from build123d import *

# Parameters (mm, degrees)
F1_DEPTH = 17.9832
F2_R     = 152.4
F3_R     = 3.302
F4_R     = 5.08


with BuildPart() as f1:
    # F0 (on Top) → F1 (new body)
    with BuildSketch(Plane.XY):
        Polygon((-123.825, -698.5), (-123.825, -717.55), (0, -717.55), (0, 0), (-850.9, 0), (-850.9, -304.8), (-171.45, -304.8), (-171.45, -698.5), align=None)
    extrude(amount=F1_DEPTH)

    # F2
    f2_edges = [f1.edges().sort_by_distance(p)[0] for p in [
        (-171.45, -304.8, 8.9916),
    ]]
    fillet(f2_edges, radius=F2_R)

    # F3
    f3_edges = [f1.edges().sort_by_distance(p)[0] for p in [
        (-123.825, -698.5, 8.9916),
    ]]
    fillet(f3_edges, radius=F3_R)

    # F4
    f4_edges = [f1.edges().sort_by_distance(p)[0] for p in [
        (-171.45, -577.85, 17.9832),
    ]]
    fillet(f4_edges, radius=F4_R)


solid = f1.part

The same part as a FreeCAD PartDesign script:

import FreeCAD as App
import Part
import Sketcher
Q = App.Units.Quantity


def edges_at(feature, points):
    """Names of the edges that pass closest to the given points."""
    edges = feature.Shape.Edges
    near = lambda p: min(range(len(edges)), key=lambda i: edges[i].distToShape(Part.Vertex(*p))[0])
    return sorted({f"Edge{near(p) + 1}" for p in points})


def add_polygon(sketch, points):
    """Adds a closed chain of lines whose ends are joined by coincident constraints."""
    first, n = sketch.GeometryCount, len(points)
    for a, b in zip(points, points[1:] + points[:1]):
        sketch.addGeometry(Part.LineSegment(App.Vector(*a, 0), App.Vector(*b, 0)), False)
    for i in range(n):
        sketch.addConstraint(Sketcher.Constraint("Coincident", first + i, 2, first + (i + 1) % n, 1))

doc = App.newDocument("Part")
params = doc.addObject("Spreadsheet::Sheet", "Params")
for row, (alias, value) in enumerate([
    ("sketch1_height", "12 in"),
    ("sketch1_width", "33.5 in"),
    ("sketch1_height2", "15.5 in"),
    ("sketch1_width2", "26.75 in"),
    ("sketch1_height3", "0.75 in"),
    ("pad1_length", "0.708 in"),
    ("fillet_radius", "6 in"),
    ("fillet2_radius", "0.13 in"),
    ("fillet3_radius", "0.2 in"),
], start=1):
    params.set(f"A{row}", alias)
    params.set(f"B{row}", "=" + value)
    params.setAlias(f"B{row}", alias)

body = doc.addObject("PartDesign::Body", "Body")

sketch1 = doc.addObject("Sketcher::SketchObject", "Sketch")
body.addObject(sketch1)
sketch1.AttachmentSupport = (doc.XY_Plane, [""])
sketch1.MapMode = "FlatFace"
add_polygon(sketch1, [(-124, -698), (-124, -718), (0, -718), (0, 0), (-851, 0), (-851, -305), (-171, -305), (-171, -698)])
sketch1.addConstraint(Sketcher.Constraint("Vertical", 0))
sketch1.addConstraint(Sketcher.Constraint("Horizontal", 1))
sketch1.addConstraint(Sketcher.Constraint("Vertical", 2))
sketch1.addConstraint(Sketcher.Constraint("Horizontal", 3))
sketch1.addConstraint(Sketcher.Constraint("Vertical", 4))
sketch1.addConstraint(Sketcher.Constraint("Horizontal", 5))
sketch1.addConstraint(Sketcher.Constraint("Vertical", 6))
sketch1.addConstraint(Sketcher.Constraint("Horizontal", 7))
sketch1.addConstraint(Sketcher.Constraint("Coincident", 2, 2, -1, 1))
sketch1.addConstraint(Sketcher.Constraint("DistanceY", 4, 2, 4, 1, Q("12 in")))
sketch1.addConstraint(Sketcher.Constraint("DistanceX", 3, 2, 3, 1, Q("33.5 in")))
sketch1.addConstraint(Sketcher.Constraint("DistanceY", 6, 2, 6, 1, Q("15.5 in")))
sketch1.addConstraint(Sketcher.Constraint("DistanceX", 5, 1, 5, 2, Q("26.75 in")))
sketch1.addConstraint(Sketcher.Constraint("DistanceY", 0, 2, 0, 1, Q("0.75 in")))
sketch1.addConstraint(Sketcher.Constraint("DistanceX", 1, 1, 1, 2, Q("4.875 in")))
sketch1.setExpression("Constraints[17]", "Params.sketch1_height")
sketch1.setExpression("Constraints[18]", "Params.sketch1_width")
sketch1.setExpression("Constraints[19]", "Params.sketch1_height2")
sketch1.setExpression("Constraints[20]", "Params.sketch1_width2")
sketch1.setExpression("Constraints[21]", "Params.sketch1_height3")
pad1 = doc.addObject("PartDesign::Pad", "Pad")
body.addObject(pad1)
pad1.Profile = sketch1
pad1.setExpression("Length", "Params.pad1_length")
doc.recompute()

fillet = doc.addObject("PartDesign::Fillet", "Fillet")
body.addObject(fillet)
fillet.Base = (pad1, edges_at(pad1, [(-171.45, -304.8, 8.992)]))
fillet.setExpression("Radius", "Params.fillet_radius")
doc.recompute()

fillet2 = doc.addObject("PartDesign::Fillet", "Fillet001")
body.addObject(fillet2)
fillet2.Base = (fillet, edges_at(fillet, [(-123.825, -698.5, 8.992)]))
fillet2.setExpression("Radius", "Params.fillet2_radius")
doc.recompute()

fillet3 = doc.addObject("PartDesign::Fillet", "Fillet002")
body.addObject(fillet3)
fillet3.Base = (fillet2, edges_at(fillet2, [(-171.45, -577.85, 17.983)]))
fillet3.setExpression("Radius", "Params.fillet3_radius")

doc.recompute()
